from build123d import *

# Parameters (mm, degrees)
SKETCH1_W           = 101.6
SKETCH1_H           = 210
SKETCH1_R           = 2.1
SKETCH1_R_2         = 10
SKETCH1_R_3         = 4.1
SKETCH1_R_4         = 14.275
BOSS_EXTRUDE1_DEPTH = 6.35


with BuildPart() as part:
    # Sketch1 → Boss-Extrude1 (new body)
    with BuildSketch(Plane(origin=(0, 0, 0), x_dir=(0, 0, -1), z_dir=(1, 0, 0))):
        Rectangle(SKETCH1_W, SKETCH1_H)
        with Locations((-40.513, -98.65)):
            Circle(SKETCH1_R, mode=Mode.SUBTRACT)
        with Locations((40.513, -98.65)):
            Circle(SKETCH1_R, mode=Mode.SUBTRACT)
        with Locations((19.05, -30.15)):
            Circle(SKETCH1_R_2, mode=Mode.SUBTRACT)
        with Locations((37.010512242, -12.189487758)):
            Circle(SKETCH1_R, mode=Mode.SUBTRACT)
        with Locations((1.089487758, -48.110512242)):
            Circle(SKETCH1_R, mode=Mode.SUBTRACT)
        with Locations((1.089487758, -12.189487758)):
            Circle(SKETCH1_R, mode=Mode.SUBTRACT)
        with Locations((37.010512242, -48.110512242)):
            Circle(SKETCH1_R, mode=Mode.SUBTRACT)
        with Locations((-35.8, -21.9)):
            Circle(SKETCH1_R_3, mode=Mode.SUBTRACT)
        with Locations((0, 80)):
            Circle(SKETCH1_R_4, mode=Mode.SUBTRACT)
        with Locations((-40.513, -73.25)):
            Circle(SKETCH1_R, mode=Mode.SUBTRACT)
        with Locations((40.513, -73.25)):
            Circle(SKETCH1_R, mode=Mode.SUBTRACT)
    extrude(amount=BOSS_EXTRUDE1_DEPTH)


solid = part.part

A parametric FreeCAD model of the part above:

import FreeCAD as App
import Part
import Sketcher
from FreeCAD import Vector
Q = App.Units.Quantity

doc = App.newDocument("Part")
body = doc.addObject("PartDesign::Body", "Body")

# Sketch on YZ plane
sketch1 = body.newObject("Sketcher::SketchObject", "Sketch")
sketch1.AttachmentSupport = (doc.getObject("YZ_Plane"), [""])
sketch1.MapMode = "FlatFace"
sketch1.addGeometry(Part.LineSegment(Vector(105, 50.8, 0), Vector(-105, 50.8, 0)), False)
sketch1.addGeometry(Part.LineSegment(Vector(-105, 50.8, 0), Vector(-105, -50.8, 0)), False)
sketch1.addGeometry(Part.LineSegment(Vector(-105, -50.8, 0), Vector(105, -50.8, 0)), False)
sketch1.addGeometry(Part.LineSegment(Vector(105, -50.8, 0), Vector(105, 50.8, 0)), False)
sketch1.addGeometry(Part.Circle(Vector(-98.7, 40.5, 0), Vector(0, 0, 1), 2.1), False)
sketch1.addGeometry(Part.Circle(Vector(-73.2, 40.5, 0), Vector(0, 0, 1), 2.1), False)
sketch1.addGeometry(Part.Circle(Vector(-21.9, 35.8, 0), Vector(0, 0, 1), 4.1), False)
sketch1.addGeometry(Part.Circle(Vector(-98.7, -40.5, 0), Vector(0, 0, 1), 2.1), False)
sketch1.addGeometry(Part.Circle(Vector(-73.2, -40.5, 0), Vector(0, 0, 1), 2.1), False)
sketch1.addGeometry(Part.Circle(Vector(-48.1, -1.1, 0), Vector(0, 0, 1), 2.1), False)
sketch1.addGeometry(Part.Circle(Vector(-30.1, -19.1, 0), Vector(0, 0, 1), 10), False)
sketch1.addGeometry(Part.Circle(Vector(-12.2, -1.1, 0), Vector(0, 0, 1), 2.1), False)
sketch1.addGeometry(Part.Circle(Vector(-48.1, -37, 0), Vector(0, 0, 1), 2.1), False)
sketch1.addGeometry(Part.Circle(Vector(-12.2, -37, 0), Vector(0, 0, 1), 2.1), False)
sketch1.addGeometry(Part.Circle(Vector(80, 0, 0), Vector(0, 0, 1), 14.3), False)
sketch1.addConstraint(Sketcher.Constraint("Coincident", 0, 2, 1, 1))
sketch1.addConstraint(Sketcher.Constraint("Coincident", 1, 2, 2, 1))
sketch1.addConstraint(Sketcher.Constraint("Coincident", 2, 2, 3, 1))
sketch1.addConstraint(Sketcher.Constraint("Coincident", 3, 2, 0, 1))
sketch1.addConstraint(Sketcher.Constraint("Horizontal", 0))
sketch1.addConstraint(Sketcher.Constraint("Vertical", 1))
sketch1.addConstraint(Sketcher.Constraint("Horizontal", 2))
sketch1.addConstraint(Sketcher.Constraint("Vertical", 3))
sketch1.addConstraint(Sketcher.Constraint("Equal", 4, 5))
sketch1.addConstraint(Sketcher.Constraint("Equal", 5, 7))
sketch1.addConstraint(Sketcher.Constraint("Equal", 7, 8))
sketch1.addConstraint(Sketcher.Constraint("Equal", 8, 9))
sketch1.addConstraint(Sketcher.Constraint("Equal", 9, 11))
sketch1.addConstraint(Sketcher.Constraint("Equal", 11, 12))
sketch1.addConstraint(Sketcher.Constraint("Equal", 12, 13))
sketch1.addConstraint(Sketcher.Constraint("Symmetric", 0, 2, 2, 2, -1, 1))
sketch1.addConstraint(Sketcher.Constraint("Symmetric", 4, 3, 7, 3, -1))
sketch1.addConstraint(Sketcher.Constraint("Symmetric", 5, 3, 8, 3, -1))
sketch1.addConstraint(Sketcher.Constraint("PointOnObject", 14, 3, -1))
sketch1.addConstraint(Sketcher.Constraint("Horizontal", 4, 3, 5, 3))
sketch1.addConstraint(Sketcher.Constraint("Horizontal", 9, 3, 11, 3))
sketch1.addConstraint(Sketcher.Constraint("Horizontal", 12, 3, 13, 3))
sketch1.addConstraint(Sketcher.Constraint("Vertical", 9, 3, 12, 3))
sketch1.addConstraint(Sketcher.Constraint("Vertical", 11, 3, 13, 3))
sketch1.addConstraint(Sketcher.Constraint("Diameter", 10, Q("20 mm")))
sketch1.addConstraint(Sketcher.Constraint("Diameter", 4, Q("4.2 mm")))
sketch1.addConstraint(Sketcher.Constraint("Diameter", 6, Q("8.2 mm")))
sketch1.addConstraint(Sketcher.Constraint("Diameter", 14, Q("28.55 mm")))
sketch1.addConstraint(Sketcher.Constraint("DistanceX", 0, 2, 0, 1, Q("210 mm")))
sketch1.addConstraint(Sketcher.Constraint("DistanceY", 1, 2, 1, 1, Q("101.6 mm")))
sketch1.addConstraint(Sketcher.Constraint("DistanceX", -1, 1, 14, 3, Q("80 mm")))
sketch1.addConstraint(Sketcher.Constraint("DistanceY", 6, 3, 0, 2, Q("15 mm")))
sketch1.addConstraint(Sketcher.Constraint("DistanceX", 6, 3, -1, 1, Q("21.9 mm")))
sketch1.addConstraint(Sketcher.Constraint("DistanceX", 4, 3, 5, 3, Q("25.4 mm")))
sketch1.addConstraint(Sketcher.Constraint("DistanceX", 8, 3, 10, 3, Q("43.1 mm")))
sketch1.addConstraint(Sketcher.Constraint("DistanceX", 4, 3, -1, 1, Q("98.65 mm")))
sketch1.addConstraint(Sketcher.Constraint("DistanceY", 10, 3, -1, 1, Q("19.05 mm")))
sketch1.addConstraint(Sketcher.Constraint("DistanceY", -1, 1, 4, 3, Q("40.513 mm")))
sketch1.addConstraint(Sketcher.Constraint("DistanceX", 9, 3, -1, 1, Q("48.110512 mm")))
sketch1.addConstraint(Sketcher.Constraint("DistanceY", 9, 3, -1, 1, Q("1.089488 mm")))
sketch1.addConstraint(Sketcher.Constraint("DistanceX", 11, 3, -1, 1, Q("12.189488 mm")))
sketch1.addConstraint(Sketcher.Constraint("DistanceY", 12, 3, -1, 1, Q("37.010512 mm")))
pad1 = body.newObject("PartDesign::Pad", "Pad")
pad1.Profile = sketch1
pad1.Length = 6.35

doc.recompute()
